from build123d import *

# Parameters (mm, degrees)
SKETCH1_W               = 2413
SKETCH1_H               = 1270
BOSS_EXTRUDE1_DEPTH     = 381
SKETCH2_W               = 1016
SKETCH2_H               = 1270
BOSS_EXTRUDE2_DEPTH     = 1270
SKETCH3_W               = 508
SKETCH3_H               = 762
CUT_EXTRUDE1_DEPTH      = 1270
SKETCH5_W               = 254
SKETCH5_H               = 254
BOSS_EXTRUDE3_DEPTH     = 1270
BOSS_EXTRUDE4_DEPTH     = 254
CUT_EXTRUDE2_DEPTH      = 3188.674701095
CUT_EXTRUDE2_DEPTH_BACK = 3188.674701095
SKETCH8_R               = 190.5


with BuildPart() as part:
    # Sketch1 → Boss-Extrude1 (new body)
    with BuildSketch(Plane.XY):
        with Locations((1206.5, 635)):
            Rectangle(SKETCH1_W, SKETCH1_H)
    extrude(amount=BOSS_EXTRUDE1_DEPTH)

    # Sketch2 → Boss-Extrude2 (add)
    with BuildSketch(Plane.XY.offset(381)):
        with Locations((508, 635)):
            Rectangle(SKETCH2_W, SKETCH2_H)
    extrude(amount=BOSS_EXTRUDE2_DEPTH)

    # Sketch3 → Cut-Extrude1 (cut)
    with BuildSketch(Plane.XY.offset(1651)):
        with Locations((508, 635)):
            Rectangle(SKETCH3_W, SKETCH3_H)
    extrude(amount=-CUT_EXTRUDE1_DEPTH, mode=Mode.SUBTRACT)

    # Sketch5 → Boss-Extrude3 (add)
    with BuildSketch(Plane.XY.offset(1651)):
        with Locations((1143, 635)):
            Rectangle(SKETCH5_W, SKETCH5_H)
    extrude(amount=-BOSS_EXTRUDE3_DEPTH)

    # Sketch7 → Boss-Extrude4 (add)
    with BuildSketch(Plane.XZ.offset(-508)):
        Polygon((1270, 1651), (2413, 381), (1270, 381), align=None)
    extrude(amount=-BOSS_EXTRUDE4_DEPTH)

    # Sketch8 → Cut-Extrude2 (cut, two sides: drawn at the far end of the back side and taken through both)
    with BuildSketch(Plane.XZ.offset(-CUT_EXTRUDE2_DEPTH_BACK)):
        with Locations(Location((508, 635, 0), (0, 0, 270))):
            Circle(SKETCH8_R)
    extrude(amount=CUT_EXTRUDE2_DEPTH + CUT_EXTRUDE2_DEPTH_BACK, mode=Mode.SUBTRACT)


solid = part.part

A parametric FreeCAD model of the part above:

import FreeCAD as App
import Part
import Sketcher
Q = App.Units.Quantity

doc = App.newDocument("Part")
body = doc.addObject("PartDesign::Body", "Body")

sketch1 = body.newObject("Sketcher::SketchObject", "Sketch")
sketch1.AttachmentSupport = (doc.getObject("XY_Plane"), [""])
sketch1.MapMode = "FlatFace"
sketch1.addGeometry(Part.LineSegment(App.Vector(0, 1270, 0), App.Vector(0, 0, 0)), False)
sketch1.addGeometry(Part.LineSegment(App.Vector(0, 0, 0), App.Vector(2413, 0, 0)), False)
sketch1.addGeometry(Part.LineSegment(App.Vector(2413, 0, 0), App.Vector(2413, 1270, 0)), False)
sketch1.addGeometry(Part.LineSegment(App.Vector(2413, 1270, 0), App.Vector(0, 1270, 0)), False)
sketch1.addConstraint(Sketcher.Constraint("Coincident", 0, 2, 1, 1))
sketch1.addConstraint(Sketcher.Constraint("Coincident", 1, 2, 2, 1))
sketch1.addConstraint(Sketcher.Constraint("Coincident", 2, 2, 3, 1))
sketch1.addConstraint(Sketcher.Constraint("Coincident", 3, 2, 0, 1))
sketch1.addConstraint(Sketcher.Constraint("Vertical", 0))
sketch1.addConstraint(Sketcher.Constraint("Horizontal", 1))
sketch1.addConstraint(Sketcher.Constraint("Vertical", 2))
sketch1.addConstraint(Sketcher.Constraint("Horizontal", 3))
sketch1.addConstraint(Sketcher.Constraint("Coincident", 0, 2, -1, 1))
sketch1.addConstraint(Sketcher.Constraint("DistanceX", 1, 1, 1, 2, Q("95 in")))
sketch1.addConstraint(Sketcher.Constraint("DistanceY", 0, 2, 0, 1, Q("50 in")))
pad1 = body.newObject("PartDesign::Pad", "Pad")
pad1.Profile = sketch1
pad1.Length = Q("15 in")

sketch2 = body.newObject("Sketcher::SketchObject", "Sketch001")
sketch2.AttachmentSupport = (doc.getObject("XY_Plane"), [""])
sketch2.MapMode = "FlatFace"
sketch2.AttachmentOffset = App.Placement(App.Vector(0, 0, 15 * 25.4), App.Rotation())
sketch2.addGeometry(Part.LineSegment(App.Vector(0, 1270, 0), App.Vector(0, 0, 0)), False)
sketch2.addGeometry(Part.LineSegment(App.Vector(0, 0, 0), App.Vector(1016, 0, 0)), False)
sketch2.addGeometry(Part.LineSegment(App.Vector(1016, 0, 0), App.Vector(1016, 1270, 0)), False)
sketch2.addGeometry(Part.LineSegment(App.Vector(1016, 1270, 0), App.Vector(0, 1270, 0)), False)
sketch2.addConstraint(Sketcher.Constraint("Coincident", 0, 2, 1, 1))
sketch2.addConstraint(Sketcher.Constraint("Coincident", 1, 2, 2, 1))
sketch2.addConstraint(Sketcher.Constraint("Coincident", 2, 2, 3, 1))
sketch2.addConstraint(Sketcher.Constraint("Coincident", 3, 2, 0, 1))
sketch2.addConstraint(Sketcher.Constraint("Vertical", 0))
sketch2.addConstraint(Sketcher.Constraint("Horizontal", 1))
sketch2.addConstraint(Sketcher.Constraint("Vertical", 2))
sketch2.addConstraint(Sketcher.Constraint("Horizontal", 3))
sketch2.addConstraint(Sketcher.Constraint("Coincident", 0, 2, -1, 1))
sketch2.addConstraint(Sketcher.Constraint("DistanceX", 1, 1, 1, 2, Q("40 in")))
sketch2.addConstraint(Sketcher.Constraint("DistanceY", 0, 2, 0, 1, Q("50 in")))
pad2 = body.newObject("PartDesign::Pad", "Pad001")
pad2.Profile = sketch2
pad2.Length = Q("50 in")

sketch3 = body.newObject("Sketcher::SketchObject", "Sketch002")
sketch3.AttachmentSupport = (doc.getObject("XY_Plane"), [""])
sketch3.MapMode = "FlatFace"
sketch3.AttachmentOffset = App.Placement(App.Vector(0, 0, 65 * 25.4), App.Rotation())
sketch3.addGeometry(Part.LineSegment(App.Vector(254, 1016, 0), App.Vector(254, 254, 0)), False)
sketch3.addGeometry(Part.LineSegment(App.Vector(254, 254, 0), App.Vector(762, 254, 0)), False)
sketch3.addGeometry(Part.LineSegment(App.Vector(762, 254, 0), App.Vector(762, 1016, 0)), False)
sketch3.addGeometry(Part.LineSegment(App.Vector(762, 1016, 0), App.Vector(254, 1016, 0)), False)
sketch3.addConstraint(Sketcher.Constraint("Coincident", 0, 2, 1, 1))
sketch3.addConstraint(Sketcher.Constraint("Coincident", 1, 2, 2, 1))
sketch3.addConstraint(Sketcher.Constraint("Coincident", 2, 2, 3, 1))
sketch3.addConstraint(Sketcher.Constraint("Coincident", 3, 2, 0, 1))
sketch3.addConstraint(Sketcher.Constraint("Vertical", 0))
sketch3.addConstraint(Sketcher.Constraint("Horizontal", 1))
sketch3.addConstraint(Sketcher.Constraint("Vertical", 2))
sketch3.addConstraint(Sketcher.Constraint("Horizontal", 3))
sketch3.addConstraint(Sketcher.Constraint("DistanceX", 1, 1, 1, 2, Q("20 in")))
sketch3.addConstraint(Sketcher.Constraint("DistanceY", 0, 2, 0, 1, Q("30 in")))
sketch3.addConstraint(Sketcher.Constraint("DistanceX", -1, 1, 0, 2, Q("10 in")))
sketch3.addConstraint(Sketcher.Constraint("DistanceY", -1, 1, 0, 2, Q("10 in")))
pocket1 = body.newObject("PartDesign::Pocket", "Pocket")
pocket1.Profile = sketch3
pocket1.Length = Q("50 in")

sketch4 = body.newObject("Sketcher::SketchObject", "Sketch003")
sketch4.AttachmentSupport = (doc.getObject("XY_Plane"), [""])
sketch4.MapMode = "FlatFace"
sketch4.AttachmentOffset = App.Placement(App.Vector(0, 0, 65 * 25.4), App.Rotation())
sketch4.addGeometry(Part.LineSegment(App.Vector(1016, 762, 0), App.Vector(1016, 508, 0)), False)
sketch4.addGeometry(Part.LineSegment(App.Vector(1016, 508, 0), App.Vector(1270, 508, 0)), False)
sketch4.addGeometry(Part.LineSegment(App.Vector(1270, 508, 0), App.Vector(1270, 762, 0)), False)
sketch4.addGeometry(Part.LineSegment(App.Vector(1270, 762, 0), App.Vector(1016, 762, 0)), False)
sketch4.addConstraint(Sketcher.Constraint("Coincident", 0, 2, 1, 1))
sketch4.addConstraint(Sketcher.Constraint("Coincident", 1, 2, 2, 1))
sketch4.addConstraint(Sketcher.Constraint("Coincident", 2, 2, 3, 1))
sketch4.addConstraint(Sketcher.Constraint("Coincident", 3, 2, 0, 1))
sketch4.addConstraint(Sketcher.Constraint("Vertical", 0))
sketch4.addConstraint(Sketcher.Constraint("Horizontal", 1))
sketch4.addConstraint(Sketcher.Constraint("Vertical", 2))
sketch4.addConstraint(Sketcher.Constraint("Horizontal", 3))
sketch4.addConstraint(Sketcher.Constraint("Equal", 3, 0))
sketch4.addConstraint(Sketcher.Constraint("DistanceX", 1, 1, 1, 2, Q("10 in")))
sketch4.addConstraint(Sketcher.Constraint("DistanceX", -1, 1, 0, 2, Q("40 in")))
sketch4.addConstraint(Sketcher.Constraint("DistanceY", -1, 1, 0, 2, Q("20 in")))
pad3 = body.newObject("PartDesign::Pad", "Pad002")
pad3.Profile = sketch4
pad3.Length = Q("50 in")
pad3.Reversed = True

sketch5 = body.newObject("Sketcher::SketchObject", "Sketch004")
sketch5.AttachmentSupport = (doc.getObject("XZ_Plane"), [""])
sketch5.MapMode = "FlatFace"
sketch5.AttachmentOffset = App.Placement(App.Vector(0, 0, -20 * 25.4), App.Rotation())
sketch5.addGeometry(Part.LineSegment(App.Vector(2413, 381, 0), App.Vector(1270, 1651, 0)), False)
sketch5.addGeometry(Part.LineSegment(App.Vector(1270, 1651, 0), App.Vector(1270, 381, 0)), False)
sketch5.addGeometry(Part.LineSegment(App.Vector(1270, 381, 0), App.Vector(2413, 381, 0)), False)
sketch5.addConstraint(Sketcher.Constraint("Coincident", 0, 2, 1, 1))
sketch5.addConstraint(Sketcher.Constraint("Coincident", 1, 2, 2, 1))
sketch5.addConstraint(Sketcher.Constraint("Coincident", 2, 2, 0, 1))
sketch5.addConstraint(Sketcher.Constraint("Vertical", 1))
sketch5.addConstraint(Sketcher.Constraint("Horizontal", 2))
sketch5.addConstraint(Sketcher.Constraint("DistanceX", 2, 1, 2, 2, Q("45 in")))
sketch5.addConstraint(Sketcher.Constraint("DistanceY", 1, 2, 1, 1, Q("50 in")))
sketch5.addConstraint(Sketcher.Constraint("DistanceX", -1, 1, 0, 2, Q("50 in")))
sketch5.addConstraint(Sketcher.Constraint("DistanceY", -1, 1, 0, 2, Q("65 in")))
pad4 = body.newObject("PartDesign::Pad", "Pad003")
pad4.Profile = sketch5
pad4.Length = Q("10 in")
pad4.Reversed = True

sketch6 = body.newObject("Sketcher::SketchObject", "Sketch005")
sketch6.AttachmentSupport = (doc.getObject("XZ_Plane"), [""])
sketch6.MapMode = "FlatFace"
sketch6.addGeometry(Part.Circle(App.Vector(508, 635, 0), App.Vector(0, 0, 1), 190), False)
sketch6.addConstraint(Sketcher.Constraint("Diameter", 0, Q("15 in")))
sketch6.addConstraint(Sketcher.Constraint("DistanceX", -1, 1, 0, 3, Q("20 in")))
sketch6.addConstraint(Sketcher.Constraint("DistanceY", -1, 1, 0, 3, Q("25 in")))
pocket2 = body.newObject("PartDesign::Pocket", "Pocket001")
pocket2.Profile = sketch6
pocket2.Type = "ThroughAll"
pocket2.Midplane = True

doc.recompute()
